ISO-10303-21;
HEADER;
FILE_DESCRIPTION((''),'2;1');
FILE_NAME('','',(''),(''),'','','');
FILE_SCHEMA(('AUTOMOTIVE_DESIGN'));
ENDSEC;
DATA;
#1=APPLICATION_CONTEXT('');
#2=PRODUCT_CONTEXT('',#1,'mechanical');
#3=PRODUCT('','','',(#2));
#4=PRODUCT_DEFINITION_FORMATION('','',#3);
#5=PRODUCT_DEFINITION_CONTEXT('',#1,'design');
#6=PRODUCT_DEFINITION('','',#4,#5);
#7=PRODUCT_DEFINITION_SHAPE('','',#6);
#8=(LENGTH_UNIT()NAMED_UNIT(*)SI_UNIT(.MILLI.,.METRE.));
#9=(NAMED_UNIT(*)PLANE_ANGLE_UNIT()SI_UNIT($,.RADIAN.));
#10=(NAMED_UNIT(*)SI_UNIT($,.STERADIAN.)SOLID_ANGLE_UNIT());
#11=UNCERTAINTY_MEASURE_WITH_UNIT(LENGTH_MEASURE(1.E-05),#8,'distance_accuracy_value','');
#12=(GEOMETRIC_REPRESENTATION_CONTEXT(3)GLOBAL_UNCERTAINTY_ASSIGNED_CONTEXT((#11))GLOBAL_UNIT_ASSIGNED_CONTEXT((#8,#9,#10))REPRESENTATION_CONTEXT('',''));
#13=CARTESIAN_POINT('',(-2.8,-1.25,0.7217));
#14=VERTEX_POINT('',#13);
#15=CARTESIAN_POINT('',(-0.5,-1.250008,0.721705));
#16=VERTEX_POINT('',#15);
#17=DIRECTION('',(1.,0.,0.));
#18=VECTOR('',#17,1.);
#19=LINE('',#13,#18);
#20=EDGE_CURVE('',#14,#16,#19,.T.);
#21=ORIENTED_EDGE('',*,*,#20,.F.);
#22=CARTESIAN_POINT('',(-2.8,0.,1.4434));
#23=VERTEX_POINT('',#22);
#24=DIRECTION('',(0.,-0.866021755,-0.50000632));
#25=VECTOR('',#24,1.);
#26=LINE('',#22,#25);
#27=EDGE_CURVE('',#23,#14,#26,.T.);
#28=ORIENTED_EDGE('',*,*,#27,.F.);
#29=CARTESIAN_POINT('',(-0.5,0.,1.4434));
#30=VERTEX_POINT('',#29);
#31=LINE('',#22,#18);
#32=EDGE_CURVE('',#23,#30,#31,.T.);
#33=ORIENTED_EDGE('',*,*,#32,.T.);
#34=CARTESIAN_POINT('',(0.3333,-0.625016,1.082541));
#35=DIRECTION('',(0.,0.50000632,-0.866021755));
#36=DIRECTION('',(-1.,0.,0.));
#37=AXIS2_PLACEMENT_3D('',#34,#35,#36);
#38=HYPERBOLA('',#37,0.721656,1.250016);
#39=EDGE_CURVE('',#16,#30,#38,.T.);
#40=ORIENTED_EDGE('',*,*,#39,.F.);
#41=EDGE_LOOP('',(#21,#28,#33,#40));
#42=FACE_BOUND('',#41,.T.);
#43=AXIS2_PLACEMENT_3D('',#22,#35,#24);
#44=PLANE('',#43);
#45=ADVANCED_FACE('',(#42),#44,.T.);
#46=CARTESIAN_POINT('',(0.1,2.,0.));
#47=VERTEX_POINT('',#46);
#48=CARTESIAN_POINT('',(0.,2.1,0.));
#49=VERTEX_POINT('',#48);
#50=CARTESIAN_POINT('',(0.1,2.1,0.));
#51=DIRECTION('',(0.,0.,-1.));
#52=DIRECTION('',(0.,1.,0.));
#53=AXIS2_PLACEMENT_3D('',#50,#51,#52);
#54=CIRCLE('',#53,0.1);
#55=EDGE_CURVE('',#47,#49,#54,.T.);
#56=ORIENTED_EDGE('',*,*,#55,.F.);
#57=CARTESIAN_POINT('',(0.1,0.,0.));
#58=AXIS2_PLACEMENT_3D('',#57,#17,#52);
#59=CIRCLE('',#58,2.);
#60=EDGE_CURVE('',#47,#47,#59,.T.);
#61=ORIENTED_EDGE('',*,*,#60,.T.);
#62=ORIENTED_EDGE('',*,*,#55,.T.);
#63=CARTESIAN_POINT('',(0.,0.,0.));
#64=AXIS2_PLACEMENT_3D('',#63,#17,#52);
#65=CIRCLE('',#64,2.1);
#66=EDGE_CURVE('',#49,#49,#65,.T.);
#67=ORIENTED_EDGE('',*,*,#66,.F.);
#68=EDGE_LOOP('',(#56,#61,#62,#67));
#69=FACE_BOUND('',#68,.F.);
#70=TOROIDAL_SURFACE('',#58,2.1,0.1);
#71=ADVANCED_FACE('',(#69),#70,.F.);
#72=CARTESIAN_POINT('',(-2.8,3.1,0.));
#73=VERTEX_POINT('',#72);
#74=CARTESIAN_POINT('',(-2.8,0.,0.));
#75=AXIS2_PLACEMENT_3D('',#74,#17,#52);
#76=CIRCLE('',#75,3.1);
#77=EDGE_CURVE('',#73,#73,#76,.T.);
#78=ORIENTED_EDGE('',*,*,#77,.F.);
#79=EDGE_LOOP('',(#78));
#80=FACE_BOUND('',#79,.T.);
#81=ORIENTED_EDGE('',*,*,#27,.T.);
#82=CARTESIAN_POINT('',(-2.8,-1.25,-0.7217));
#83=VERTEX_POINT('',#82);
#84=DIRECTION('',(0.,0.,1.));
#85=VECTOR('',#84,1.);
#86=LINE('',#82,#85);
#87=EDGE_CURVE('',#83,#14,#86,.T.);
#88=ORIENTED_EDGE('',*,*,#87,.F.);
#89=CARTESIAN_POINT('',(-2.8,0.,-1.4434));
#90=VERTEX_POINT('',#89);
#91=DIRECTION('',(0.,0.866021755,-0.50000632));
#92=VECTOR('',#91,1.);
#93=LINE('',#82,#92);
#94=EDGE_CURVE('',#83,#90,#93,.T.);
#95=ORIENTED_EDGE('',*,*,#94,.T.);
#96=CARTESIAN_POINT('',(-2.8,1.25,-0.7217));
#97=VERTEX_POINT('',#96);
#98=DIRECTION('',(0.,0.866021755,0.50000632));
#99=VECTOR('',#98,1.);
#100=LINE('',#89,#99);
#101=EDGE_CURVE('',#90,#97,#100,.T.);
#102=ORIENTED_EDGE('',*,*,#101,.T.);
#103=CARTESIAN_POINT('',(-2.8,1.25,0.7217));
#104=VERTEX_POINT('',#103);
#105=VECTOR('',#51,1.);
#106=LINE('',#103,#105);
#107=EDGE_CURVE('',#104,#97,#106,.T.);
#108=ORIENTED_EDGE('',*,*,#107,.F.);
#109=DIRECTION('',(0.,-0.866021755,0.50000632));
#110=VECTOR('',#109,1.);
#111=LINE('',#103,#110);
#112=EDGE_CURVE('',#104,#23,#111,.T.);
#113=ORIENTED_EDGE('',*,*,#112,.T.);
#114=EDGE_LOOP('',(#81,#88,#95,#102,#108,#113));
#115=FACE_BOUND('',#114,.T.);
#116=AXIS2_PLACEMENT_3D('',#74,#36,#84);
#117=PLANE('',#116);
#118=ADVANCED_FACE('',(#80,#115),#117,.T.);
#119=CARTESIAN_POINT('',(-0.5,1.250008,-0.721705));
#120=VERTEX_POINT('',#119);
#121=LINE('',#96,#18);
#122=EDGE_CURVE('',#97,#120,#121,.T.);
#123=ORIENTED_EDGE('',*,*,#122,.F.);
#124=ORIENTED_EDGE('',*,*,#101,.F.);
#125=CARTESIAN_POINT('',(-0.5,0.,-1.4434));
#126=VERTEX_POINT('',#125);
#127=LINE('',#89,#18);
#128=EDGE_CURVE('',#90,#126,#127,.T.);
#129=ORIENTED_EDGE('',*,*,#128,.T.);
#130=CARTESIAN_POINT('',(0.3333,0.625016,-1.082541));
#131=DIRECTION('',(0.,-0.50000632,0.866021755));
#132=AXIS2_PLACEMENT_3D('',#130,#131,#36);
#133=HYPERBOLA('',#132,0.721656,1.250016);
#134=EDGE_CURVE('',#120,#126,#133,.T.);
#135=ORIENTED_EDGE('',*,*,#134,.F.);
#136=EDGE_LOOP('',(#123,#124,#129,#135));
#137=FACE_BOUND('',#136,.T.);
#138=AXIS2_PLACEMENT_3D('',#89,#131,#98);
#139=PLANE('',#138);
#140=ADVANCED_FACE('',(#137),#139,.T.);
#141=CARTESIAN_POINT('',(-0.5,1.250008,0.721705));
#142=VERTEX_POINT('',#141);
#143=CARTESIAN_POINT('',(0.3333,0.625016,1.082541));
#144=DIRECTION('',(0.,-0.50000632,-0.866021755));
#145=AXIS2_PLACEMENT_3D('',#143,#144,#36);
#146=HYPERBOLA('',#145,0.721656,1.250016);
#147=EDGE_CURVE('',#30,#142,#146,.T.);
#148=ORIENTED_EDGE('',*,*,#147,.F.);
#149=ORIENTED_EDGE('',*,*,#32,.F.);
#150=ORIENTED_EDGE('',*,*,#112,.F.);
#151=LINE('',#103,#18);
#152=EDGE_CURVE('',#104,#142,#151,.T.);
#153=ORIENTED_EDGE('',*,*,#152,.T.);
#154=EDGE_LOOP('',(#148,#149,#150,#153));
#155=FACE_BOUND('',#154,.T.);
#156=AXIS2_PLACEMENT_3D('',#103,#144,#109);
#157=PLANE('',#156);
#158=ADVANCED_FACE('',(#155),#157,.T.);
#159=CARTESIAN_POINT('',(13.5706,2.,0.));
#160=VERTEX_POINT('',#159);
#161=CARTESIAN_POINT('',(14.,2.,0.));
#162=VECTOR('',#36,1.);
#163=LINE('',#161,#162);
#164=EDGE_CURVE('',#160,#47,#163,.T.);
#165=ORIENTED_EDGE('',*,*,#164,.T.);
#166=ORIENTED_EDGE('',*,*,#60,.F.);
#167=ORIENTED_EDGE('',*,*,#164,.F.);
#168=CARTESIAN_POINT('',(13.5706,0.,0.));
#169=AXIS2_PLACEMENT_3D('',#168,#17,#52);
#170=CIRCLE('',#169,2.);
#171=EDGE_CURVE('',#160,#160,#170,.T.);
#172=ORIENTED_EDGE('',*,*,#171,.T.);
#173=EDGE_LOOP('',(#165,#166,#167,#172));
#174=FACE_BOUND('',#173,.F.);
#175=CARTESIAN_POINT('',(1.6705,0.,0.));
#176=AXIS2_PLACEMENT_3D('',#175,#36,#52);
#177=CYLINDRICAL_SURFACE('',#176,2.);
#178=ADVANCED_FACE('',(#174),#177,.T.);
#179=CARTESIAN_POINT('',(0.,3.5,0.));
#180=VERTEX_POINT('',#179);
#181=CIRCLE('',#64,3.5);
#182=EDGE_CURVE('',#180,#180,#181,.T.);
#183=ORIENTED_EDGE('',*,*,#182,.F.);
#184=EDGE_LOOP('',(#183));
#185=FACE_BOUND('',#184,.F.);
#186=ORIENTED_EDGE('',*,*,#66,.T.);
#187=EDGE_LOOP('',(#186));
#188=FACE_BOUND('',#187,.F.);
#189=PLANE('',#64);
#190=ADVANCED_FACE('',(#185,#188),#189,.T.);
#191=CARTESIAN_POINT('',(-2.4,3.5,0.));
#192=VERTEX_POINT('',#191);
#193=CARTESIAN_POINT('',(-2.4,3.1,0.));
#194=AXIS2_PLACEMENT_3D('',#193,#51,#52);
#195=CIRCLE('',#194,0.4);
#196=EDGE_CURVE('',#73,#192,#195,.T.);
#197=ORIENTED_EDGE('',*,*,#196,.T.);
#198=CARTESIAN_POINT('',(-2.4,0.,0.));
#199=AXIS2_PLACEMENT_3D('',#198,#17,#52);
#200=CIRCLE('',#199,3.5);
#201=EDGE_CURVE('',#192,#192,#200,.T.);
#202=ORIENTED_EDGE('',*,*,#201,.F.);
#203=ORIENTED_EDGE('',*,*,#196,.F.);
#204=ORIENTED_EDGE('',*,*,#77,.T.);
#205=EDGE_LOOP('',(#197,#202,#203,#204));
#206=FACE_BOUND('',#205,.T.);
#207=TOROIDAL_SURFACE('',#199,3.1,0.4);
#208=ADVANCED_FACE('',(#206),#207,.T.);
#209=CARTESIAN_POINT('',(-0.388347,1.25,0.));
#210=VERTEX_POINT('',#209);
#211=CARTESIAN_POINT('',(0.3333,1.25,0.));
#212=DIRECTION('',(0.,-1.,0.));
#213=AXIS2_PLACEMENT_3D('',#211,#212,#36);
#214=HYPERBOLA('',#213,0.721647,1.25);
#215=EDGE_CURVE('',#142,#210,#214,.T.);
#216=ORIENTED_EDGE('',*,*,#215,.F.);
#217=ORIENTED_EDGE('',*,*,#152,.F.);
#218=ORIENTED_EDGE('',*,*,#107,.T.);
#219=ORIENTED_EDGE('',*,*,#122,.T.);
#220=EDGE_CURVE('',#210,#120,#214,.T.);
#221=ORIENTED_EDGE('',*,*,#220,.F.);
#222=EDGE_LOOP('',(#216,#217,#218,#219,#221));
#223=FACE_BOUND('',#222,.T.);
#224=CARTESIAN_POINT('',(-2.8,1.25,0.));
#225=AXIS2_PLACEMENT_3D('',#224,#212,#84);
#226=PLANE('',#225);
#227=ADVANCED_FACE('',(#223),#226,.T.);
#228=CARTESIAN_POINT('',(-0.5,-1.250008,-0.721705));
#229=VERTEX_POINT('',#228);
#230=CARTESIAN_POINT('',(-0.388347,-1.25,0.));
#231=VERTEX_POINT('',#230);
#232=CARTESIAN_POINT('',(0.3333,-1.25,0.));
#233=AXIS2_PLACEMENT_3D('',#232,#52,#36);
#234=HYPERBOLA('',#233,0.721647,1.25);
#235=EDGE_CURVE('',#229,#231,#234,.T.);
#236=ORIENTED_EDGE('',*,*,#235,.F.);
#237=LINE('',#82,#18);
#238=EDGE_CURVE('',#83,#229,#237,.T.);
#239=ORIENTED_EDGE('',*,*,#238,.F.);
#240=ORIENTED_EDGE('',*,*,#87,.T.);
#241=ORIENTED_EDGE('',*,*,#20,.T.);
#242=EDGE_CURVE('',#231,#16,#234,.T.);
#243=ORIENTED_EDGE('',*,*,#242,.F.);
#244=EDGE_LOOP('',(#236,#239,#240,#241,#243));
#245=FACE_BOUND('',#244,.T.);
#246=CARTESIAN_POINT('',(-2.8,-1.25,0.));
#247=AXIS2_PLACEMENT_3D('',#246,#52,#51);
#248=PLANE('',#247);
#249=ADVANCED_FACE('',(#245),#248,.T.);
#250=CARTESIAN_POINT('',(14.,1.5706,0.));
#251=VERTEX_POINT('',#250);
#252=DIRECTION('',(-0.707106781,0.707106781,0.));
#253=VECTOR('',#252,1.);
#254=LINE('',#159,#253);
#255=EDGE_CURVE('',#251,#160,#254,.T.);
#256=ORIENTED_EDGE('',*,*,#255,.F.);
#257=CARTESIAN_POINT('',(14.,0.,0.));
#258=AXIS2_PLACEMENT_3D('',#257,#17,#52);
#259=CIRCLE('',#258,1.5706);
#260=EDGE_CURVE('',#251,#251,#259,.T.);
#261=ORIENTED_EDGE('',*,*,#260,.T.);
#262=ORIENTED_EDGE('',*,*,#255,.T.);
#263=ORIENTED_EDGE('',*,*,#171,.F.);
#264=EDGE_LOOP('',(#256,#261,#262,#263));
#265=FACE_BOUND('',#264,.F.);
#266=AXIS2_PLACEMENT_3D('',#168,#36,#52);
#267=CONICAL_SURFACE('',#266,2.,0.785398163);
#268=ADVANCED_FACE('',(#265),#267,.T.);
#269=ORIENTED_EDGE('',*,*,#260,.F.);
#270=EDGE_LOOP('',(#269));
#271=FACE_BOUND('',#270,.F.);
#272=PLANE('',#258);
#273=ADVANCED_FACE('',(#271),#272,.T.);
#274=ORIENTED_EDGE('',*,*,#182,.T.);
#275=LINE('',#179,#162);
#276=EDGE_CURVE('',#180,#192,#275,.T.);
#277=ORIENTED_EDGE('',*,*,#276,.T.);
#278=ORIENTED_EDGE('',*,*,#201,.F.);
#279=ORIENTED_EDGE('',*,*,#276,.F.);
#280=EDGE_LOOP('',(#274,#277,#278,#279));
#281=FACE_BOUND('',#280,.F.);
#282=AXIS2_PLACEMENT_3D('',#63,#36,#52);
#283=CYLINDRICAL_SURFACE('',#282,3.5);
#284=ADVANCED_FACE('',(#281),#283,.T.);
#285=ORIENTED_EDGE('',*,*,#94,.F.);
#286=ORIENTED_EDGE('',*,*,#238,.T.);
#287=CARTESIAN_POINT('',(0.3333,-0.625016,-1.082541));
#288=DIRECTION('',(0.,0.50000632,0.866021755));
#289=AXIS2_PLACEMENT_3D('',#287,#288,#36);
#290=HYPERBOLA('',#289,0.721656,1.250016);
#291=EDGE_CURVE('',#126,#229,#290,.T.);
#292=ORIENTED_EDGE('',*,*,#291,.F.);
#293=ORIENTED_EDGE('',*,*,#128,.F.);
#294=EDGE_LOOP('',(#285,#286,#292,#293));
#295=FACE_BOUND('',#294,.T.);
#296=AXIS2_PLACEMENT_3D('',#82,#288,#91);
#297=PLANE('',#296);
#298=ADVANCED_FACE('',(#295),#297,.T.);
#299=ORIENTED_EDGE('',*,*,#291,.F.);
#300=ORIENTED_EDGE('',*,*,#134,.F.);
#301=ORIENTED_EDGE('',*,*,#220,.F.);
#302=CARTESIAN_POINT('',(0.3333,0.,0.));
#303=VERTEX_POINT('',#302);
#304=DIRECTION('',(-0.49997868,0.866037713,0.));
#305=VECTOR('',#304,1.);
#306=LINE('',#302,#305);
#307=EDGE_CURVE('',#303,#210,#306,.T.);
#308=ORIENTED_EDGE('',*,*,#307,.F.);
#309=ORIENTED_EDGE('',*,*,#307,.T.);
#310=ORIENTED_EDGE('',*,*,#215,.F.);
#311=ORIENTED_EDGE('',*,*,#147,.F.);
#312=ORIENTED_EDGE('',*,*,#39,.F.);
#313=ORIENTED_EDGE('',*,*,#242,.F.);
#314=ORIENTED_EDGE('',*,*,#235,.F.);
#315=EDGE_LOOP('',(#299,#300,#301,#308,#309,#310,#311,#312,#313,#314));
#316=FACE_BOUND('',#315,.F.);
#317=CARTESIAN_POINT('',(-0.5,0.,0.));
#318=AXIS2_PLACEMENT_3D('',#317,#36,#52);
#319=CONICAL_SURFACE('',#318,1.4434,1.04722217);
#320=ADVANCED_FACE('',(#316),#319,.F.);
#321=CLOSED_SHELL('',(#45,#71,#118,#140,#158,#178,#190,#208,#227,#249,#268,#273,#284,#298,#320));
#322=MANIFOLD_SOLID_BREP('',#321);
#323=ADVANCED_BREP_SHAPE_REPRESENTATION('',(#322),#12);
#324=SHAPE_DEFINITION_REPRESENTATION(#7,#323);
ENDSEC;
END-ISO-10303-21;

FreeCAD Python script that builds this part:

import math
import FreeCAD as App
import Part
import Sketcher
Q = App.Units.Quantity


def edges_at(feature, points):
    """Names of the edges that pass closest to the given points."""
    edges = feature.Shape.Edges
    near = lambda p: min(range(len(edges)), key=lambda i: edges[i].distToShape(Part.Vertex(*p))[0])
    return sorted({f"Edge{near(p) + 1}" for p in points})


def add_polygon(sketch, points):
    """Adds a closed chain of lines whose ends are joined by coincident constraints."""
    first, n = sketch.GeometryCount, len(points)
    for a, b in zip(points, points[1:] + points[:1]):
        sketch.addGeometry(Part.LineSegment(App.Vector(*a, 0), App.Vector(*b, 0)), False)
    for i in range(n):
        sketch.addConstraint(Sketcher.Constraint("Coincident", first + i, 2, first + (i + 1) % n, 1))

doc = App.newDocument("Part")
body = doc.addObject("PartDesign::Body", "Body")

# Sketch on XY plane
sketch1 = doc.addObject("Sketcher::SketchObject", "Sketch")
body.addObject(sketch1)
sketch1.AttachmentSupport = (doc.XY_Plane, [""])
sketch1.MapMode = "FlatFace"
add_polygon(sketch1, [(0.3333, 0), (14, 0), (14, 2), (0, 2), (0, 3.5), (-2.8, 3.5), (-2.8, 1.4434), (-0.5, 1.4434)])  # lines 0-7
sketch1.addConstraint([
    Sketcher.Constraint("Horizontal", 0),
    Sketcher.Constraint("Vertical", 1),
    Sketcher.Constraint("Horizontal", 2),
    Sketcher.Constraint("Vertical", 3),
    Sketcher.Constraint("Horizontal", 4),
    Sketcher.Constraint("Vertical", 5),
    Sketcher.Constraint("Horizontal", 6),
    Sketcher.Constraint("PointOnObject", 0, 2, -1),
    Sketcher.Constraint("PointOnObject", 2, 2, -2),
    Sketcher.Constraint("DistanceX", 2, 2, 2, 1, 14.0),
    Sketcher.Constraint("DistanceX", 4, 2, 4, 1, 2.8),
    Sketcher.Constraint("DistanceX", 6, 1, 6, 2, 2.3),
    Sketcher.Constraint("DistanceY", 1, 1, 1, 2, 2.0),
    Sketcher.Constraint("DistanceY", 3, 1, 3, 2, 1.5),
    Sketcher.Constraint("DistanceX", 0, 1, 0, 2, 13.6667),
    Sketcher.Constraint("DistanceY", 5, 2, 5, 1, 2.0566),
])
revolution = doc.addObject("PartDesign::Revolution", "Revolution")
body.addObject(revolution)
revolution.Profile = sketch1
revolution.ReferenceAxis = (sketch1, ["H_Axis"])
revolution.Angle = 360

# Sketch on YZ plane
sketch2 = doc.addObject("Sketcher::SketchObject", "Sketch001")
body.addObject(sketch2)
sketch2.AttachmentSupport = (doc.YZ_Plane, [""])
sketch2.MapMode = "FlatFace"
sketch2.AttachmentOffset = App.Placement(App.Vector(0, 0, -2.8), App.Rotation())
sketch2.addGeometry([
    Part.LineSegment(App.Vector(1.25, 0.7217, 0), App.Vector(0, 1.4434, 0)),  # 0
    Part.ArcOfCircle(Part.Circle(App.Vector(0, 0, 0), App.Vector(0, 0, 1), 1.4434), math.radians(30.000418), math.radians(90)),  # 1
    Part.ArcOfCircle(Part.Circle(App.Vector(0, 0, 0), App.Vector(0, 0, 1), 1.4434), math.radians(90), math.radians(149.999582)),  # 2
    Part.LineSegment(App.Vector(0, 1.4434, 0), App.Vector(-1.25, 0.7217, 0)),  # 3
    Part.ArcOfCircle(Part.Circle(App.Vector(0, 0, 0), App.Vector(0, 0, 1), 1.4434), math.radians(-30.000418), math.radians(30.000418)),  # 4
    Part.LineSegment(App.Vector(1.25, 0.7217, 0), App.Vector(1.25, -0.7217, 0)),  # 5
    Part.LineSegment(App.Vector(-1.25, 0.7217, 0), App.Vector(-1.25, -0.7217, 0)),  # 6
    Part.ArcOfCircle(Part.Circle(App.Vector(0, 0, 0), App.Vector(0, 0, 1), 1.4434), math.radians(149.999582), math.radians(210.000418)),  # 7
    Part.LineSegment(App.Vector(-1.25, -0.7217, 0), App.Vector(0, -1.4434, 0)),  # 8
    Part.ArcOfCircle(Part.Circle(App.Vector(0, 0, 0), App.Vector(0, 0, 1), 1.4434), math.radians(-149.999582), math.radians(-90)),  # 9
    Part.ArcOfCircle(Part.Circle(App.Vector(0, 0, 0), App.Vector(0, 0, 1), 1.4434), math.radians(-90), math.radians(-30.000418)),  # 10
    Part.LineSegment(App.Vector(0, -1.4434, 0), App.Vector(1.25, -0.7217, 0)),  # 11
], False)
sketch2.addConstraint([
    Sketcher.Constraint("Coincident", 0, 1, 1, 1),
    Sketcher.Constraint("Coincident", 1, 2, 0, 2),
    Sketcher.Constraint("Coincident", 2, 1, 3, 1),
    Sketcher.Constraint("Coincident", 3, 2, 2, 2),
    Sketcher.Constraint("Coincident", 4, 1, 5, 2),
    Sketcher.Constraint("Coincident", 5, 1, 4, 2),
    Sketcher.Constraint("Coincident", 6, 1, 7, 1),
    Sketcher.Constraint("Coincident", 7, 2, 6, 2),
    Sketcher.Constraint("Coincident", 8, 1, 9, 1),
    Sketcher.Constraint("Coincident", 9, 2, 8, 2),
    Sketcher.Constraint("Coincident", 10, 1, 11, 1),
    Sketcher.Constraint("Coincident", 11, 2, 10, 2),
    Sketcher.Constraint("Vertical", 5),
    Sketcher.Constraint("Vertical", 6),
    Sketcher.Constraint("Coincident", 1, 3, -1, 1),
    Sketcher.Constraint("Coincident", 2, 3, -1, 1),
    Sketcher.Constraint("Coincident", 4, 3, -1, 1),
    Sketcher.Constraint("Coincident", 7, 3, -1, 1),
    Sketcher.Constraint("Coincident", 9, 3, -1, 1),
    Sketcher.Constraint("Coincident", 10, 3, -1, 1),
    Sketcher.Constraint("Coincident", 2, 1, 1, 2),
    Sketcher.Constraint("Coincident", 5, 1, 0, 1),
    Sketcher.Constraint("Coincident", 6, 1, 3, 2),
    Sketcher.Constraint("Coincident", 8, 1, 7, 2),
    Sketcher.Constraint("Coincident", 10, 1, 9, 2),
    Sketcher.Constraint("PointOnObject", 1, 2, -2),
    Sketcher.Constraint("PointOnObject", 9, 2, -2),
    Sketcher.Constraint("Parallel", 0, 8),
    Sketcher.Constraint("Parallel", 3, 11),
    Sketcher.Constraint("Angle", 0, Q("149.9996 deg")),
    Sketcher.Constraint("Radius", 1, 1.4434),
])
pad1 = doc.addObject("PartDesign::Pad", "Pad")
body.addObject(pad1)
pad1.Profile = sketch2
pad1.Type = "UpToFirst"
doc.recompute()

fillet = doc.addObject("PartDesign::Fillet", "Fillet")
body.addObject(fillet)
fillet.Base = (pad1, edges_at(pad1, [(-2.8, -3.5, 0)]))
fillet.Radius = 0.4
doc.recompute()

chamfer = doc.addObject("PartDesign::Chamfer", "Chamfer")
body.addObject(chamfer)
chamfer.Base = (fillet, edges_at(fillet, [(14, -2, 0)]))
chamfer.ChamferType = "Two distances"
chamfer.Size = 0.4294
chamfer.Size2 = 0.4294
doc.recompute()

fillet2 = doc.addObject("PartDesign::Fillet", "Fillet001")
body.addObject(fillet2)
fillet2.Base = (chamfer, edges_at(chamfer, [(0, -2, 0)]))
fillet2.Radius = 0.1

doc.recompute()
